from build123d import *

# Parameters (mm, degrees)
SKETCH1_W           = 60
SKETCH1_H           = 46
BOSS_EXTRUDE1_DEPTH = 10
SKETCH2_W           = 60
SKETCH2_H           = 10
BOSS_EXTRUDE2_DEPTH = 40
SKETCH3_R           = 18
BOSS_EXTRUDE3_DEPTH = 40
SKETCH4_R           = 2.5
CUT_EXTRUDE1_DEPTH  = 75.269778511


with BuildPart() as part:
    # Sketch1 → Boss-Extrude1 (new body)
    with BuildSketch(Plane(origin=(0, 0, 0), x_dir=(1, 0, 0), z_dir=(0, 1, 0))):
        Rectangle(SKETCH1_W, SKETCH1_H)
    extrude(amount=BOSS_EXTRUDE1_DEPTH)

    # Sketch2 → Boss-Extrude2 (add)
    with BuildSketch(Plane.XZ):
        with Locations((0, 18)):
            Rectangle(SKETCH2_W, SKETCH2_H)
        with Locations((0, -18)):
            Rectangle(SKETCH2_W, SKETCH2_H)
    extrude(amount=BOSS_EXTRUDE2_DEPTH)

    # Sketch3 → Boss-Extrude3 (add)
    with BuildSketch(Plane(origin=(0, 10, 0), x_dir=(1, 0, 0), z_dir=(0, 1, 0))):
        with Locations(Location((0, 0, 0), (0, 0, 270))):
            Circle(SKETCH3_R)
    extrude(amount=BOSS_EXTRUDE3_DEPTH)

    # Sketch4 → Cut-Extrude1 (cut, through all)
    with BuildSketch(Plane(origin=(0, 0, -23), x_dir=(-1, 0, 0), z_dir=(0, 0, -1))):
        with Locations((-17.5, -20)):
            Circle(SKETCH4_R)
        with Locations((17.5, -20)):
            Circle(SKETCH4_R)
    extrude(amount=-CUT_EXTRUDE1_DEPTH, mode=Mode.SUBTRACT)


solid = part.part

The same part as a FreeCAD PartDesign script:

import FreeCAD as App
import Part
import Sketcher

V = App.Vector
Q = App.Units.Quantity

doc = App.newDocument("Part")
body = doc.addObject("PartDesign::Body", "Body")

sketch1 = body.newObject("Sketcher::SketchObject", "Sketch")
sketch1.AttachmentSupport = (doc.getObject("XZ_Plane"), [""])
sketch1.MapMode = "FlatFace"
sketch1.addGeometry([
    Part.LineSegment(V(-30, -23, 0), V(-30, 23, 0)),
    Part.LineSegment(V(-30, 23, 0), V(30, 23, 0)),
    Part.LineSegment(V(30, 23, 0), V(30, -23, 0)),
    Part.LineSegment(V(30, -23, 0), V(-30, -23, 0)),
], False)
sketch1.addConstraint([
    Sketcher.Constraint("Coincident", 0, 2, 1, 1),
    Sketcher.Constraint("Coincident", 1, 2, 2, 1),
    Sketcher.Constraint("Coincident", 2, 2, 3, 1),
    Sketcher.Constraint("Coincident", 3, 2, 0, 1),
    Sketcher.Constraint("Vertical", 0),
    Sketcher.Constraint("Horizontal", 1),
    Sketcher.Constraint("Vertical", 2),
    Sketcher.Constraint("Horizontal", 3),
    Sketcher.Constraint("Symmetric", 0, 2, 2, 2, -1, 1),
    Sketcher.Constraint("DistanceX", 1, 1, 1, 2, Q("60 mm")),
    Sketcher.Constraint("DistanceY", 0, 1, 0, 2, Q("46 mm")),
])
pad1 = body.newObject("PartDesign::Pad", "Pad")
pad1.Profile = sketch1
pad1.Length = 10
pad1.Reversed = True

sketch2 = body.newObject("Sketcher::SketchObject", "Sketch001")
sketch2.AttachmentSupport = (doc.getObject("XZ_Plane"), [""])
sketch2.MapMode = "FlatFace"
sketch2.addGeometry([
    Part.LineSegment(V(-30, 23, 0), V(-30, 13, 0)),
    Part.LineSegment(V(-30, 13, 0), V(30, 13, 0)),
    Part.LineSegment(V(30, 13, 0), V(30, 23, 0)),
    Part.LineSegment(V(30, 23, 0), V(-30, 23, 0)),
    Part.LineSegment(V(-30, -13, 0), V(-30, -23, 0)),
    Part.LineSegment(V(-30, -23, 0), V(30, -23, 0)),
    Part.LineSegment(V(30, -23, 0), V(30, -13, 0)),
    Part.LineSegment(V(30, -13, 0), V(-30, -13, 0)),
], False)
sketch2.addConstraint([
    Sketcher.Constraint("Coincident", 0, 2, 1, 1),
    Sketcher.Constraint("Coincident", 1, 2, 2, 1),
    Sketcher.Constraint("Coincident", 2, 2, 3, 1),
    Sketcher.Constraint("Coincident", 3, 2, 0, 1),
    Sketcher.Constraint("Coincident", 4, 2, 5, 1),
    Sketcher.Constraint("Coincident", 5, 2, 6, 1),
    Sketcher.Constraint("Coincident", 6, 2, 7, 1),
    Sketcher.Constraint("Coincident", 7, 2, 4, 1),
    Sketcher.Constraint("Vertical", 0),
    Sketcher.Constraint("Horizontal", 1),
    Sketcher.Constraint("Vertical", 2),
    Sketcher.Constraint("Horizontal", 3),
    Sketcher.Constraint("Vertical", 4),
    Sketcher.Constraint("Horizontal", 5),
    Sketcher.Constraint("Vertical", 6),
    Sketcher.Constraint("Horizontal", 7),
    Sketcher.Constraint("Symmetric", 2, 2, 4, 2, -1, 1),
    Sketcher.Constraint("Symmetric", 0, 2, 6, 2, -1, 1),
    Sketcher.Constraint("Vertical", 3, 2, 4, 2),
    Sketcher.Constraint("DistanceX", 1, 1, 1, 2, Q("60 mm")),
    Sketcher.Constraint("DistanceY", 0, 2, 0, 1, Q("10 mm")),
    Sketcher.Constraint("DistanceY", -1, 1, 0, 2, Q("13 mm")),
])
pad2 = body.newObject("PartDesign::Pad", "Pad001")
pad2.Profile = sketch2
pad2.Length = 40

sketch3 = body.newObject("Sketcher::SketchObject", "Sketch002")
sketch3.AttachmentSupport = (doc.getObject("XZ_Plane"), [""])
sketch3.MapMode = "FlatFace"
sketch3.AttachmentOffset = App.Placement(V(0, 0, -10), App.Rotation())
sketch3.addGeometry(Part.Circle(V(0, 0, 0), V(0, 0, 1), 18), False)
sketch3.addConstraint([
    Sketcher.Constraint("Coincident", 0, 3, -1, 1),
    Sketcher.Constraint("Diameter", 0, Q("36 mm")),
])
pad3 = body.newObject("PartDesign::Pad", "Pad002")
pad3.Profile = sketch3
pad3.Length = 40
pad3.Reversed = True

sketch4 = body.newObject("Sketcher::SketchObject", "Sketch003")
sketch4.AttachmentSupport = (doc.getObject("XY_Plane"), [""])
sketch4.MapMode = "FlatFace"
sketch4.AttachmentOffset = App.Placement(V(0, 0, -23), App.Rotation())
sketch4.addGeometry([
    Part.Circle(V(17.5, -20, 0), V(0, 0, 1), 2.5),
    Part.Circle(V(-17.5, -20, 0), V(0, 0, 1), 2.5),
], False)
sketch4.addConstraint([
    Sketcher.Constraint("Equal", 0, 1),
    Sketcher.Constraint("Symmetric", 0, 3, 1, 3, -2),
    Sketcher.Constraint("Diameter", 0, Q("5 mm")),
    Sketcher.Constraint("DistanceY", 0, 3, -1, 1, Q("20 mm")),
    Sketcher.Constraint("DistanceX", 1, 3, 0, 3, Q("35 mm")),
])
pocket1 = body.newObject("PartDesign::Pocket", "Pocket")
pocket1.Profile = sketch4
pocket1.Type = "ThroughAll"
pocket1.Reversed = True

doc.recompute()
